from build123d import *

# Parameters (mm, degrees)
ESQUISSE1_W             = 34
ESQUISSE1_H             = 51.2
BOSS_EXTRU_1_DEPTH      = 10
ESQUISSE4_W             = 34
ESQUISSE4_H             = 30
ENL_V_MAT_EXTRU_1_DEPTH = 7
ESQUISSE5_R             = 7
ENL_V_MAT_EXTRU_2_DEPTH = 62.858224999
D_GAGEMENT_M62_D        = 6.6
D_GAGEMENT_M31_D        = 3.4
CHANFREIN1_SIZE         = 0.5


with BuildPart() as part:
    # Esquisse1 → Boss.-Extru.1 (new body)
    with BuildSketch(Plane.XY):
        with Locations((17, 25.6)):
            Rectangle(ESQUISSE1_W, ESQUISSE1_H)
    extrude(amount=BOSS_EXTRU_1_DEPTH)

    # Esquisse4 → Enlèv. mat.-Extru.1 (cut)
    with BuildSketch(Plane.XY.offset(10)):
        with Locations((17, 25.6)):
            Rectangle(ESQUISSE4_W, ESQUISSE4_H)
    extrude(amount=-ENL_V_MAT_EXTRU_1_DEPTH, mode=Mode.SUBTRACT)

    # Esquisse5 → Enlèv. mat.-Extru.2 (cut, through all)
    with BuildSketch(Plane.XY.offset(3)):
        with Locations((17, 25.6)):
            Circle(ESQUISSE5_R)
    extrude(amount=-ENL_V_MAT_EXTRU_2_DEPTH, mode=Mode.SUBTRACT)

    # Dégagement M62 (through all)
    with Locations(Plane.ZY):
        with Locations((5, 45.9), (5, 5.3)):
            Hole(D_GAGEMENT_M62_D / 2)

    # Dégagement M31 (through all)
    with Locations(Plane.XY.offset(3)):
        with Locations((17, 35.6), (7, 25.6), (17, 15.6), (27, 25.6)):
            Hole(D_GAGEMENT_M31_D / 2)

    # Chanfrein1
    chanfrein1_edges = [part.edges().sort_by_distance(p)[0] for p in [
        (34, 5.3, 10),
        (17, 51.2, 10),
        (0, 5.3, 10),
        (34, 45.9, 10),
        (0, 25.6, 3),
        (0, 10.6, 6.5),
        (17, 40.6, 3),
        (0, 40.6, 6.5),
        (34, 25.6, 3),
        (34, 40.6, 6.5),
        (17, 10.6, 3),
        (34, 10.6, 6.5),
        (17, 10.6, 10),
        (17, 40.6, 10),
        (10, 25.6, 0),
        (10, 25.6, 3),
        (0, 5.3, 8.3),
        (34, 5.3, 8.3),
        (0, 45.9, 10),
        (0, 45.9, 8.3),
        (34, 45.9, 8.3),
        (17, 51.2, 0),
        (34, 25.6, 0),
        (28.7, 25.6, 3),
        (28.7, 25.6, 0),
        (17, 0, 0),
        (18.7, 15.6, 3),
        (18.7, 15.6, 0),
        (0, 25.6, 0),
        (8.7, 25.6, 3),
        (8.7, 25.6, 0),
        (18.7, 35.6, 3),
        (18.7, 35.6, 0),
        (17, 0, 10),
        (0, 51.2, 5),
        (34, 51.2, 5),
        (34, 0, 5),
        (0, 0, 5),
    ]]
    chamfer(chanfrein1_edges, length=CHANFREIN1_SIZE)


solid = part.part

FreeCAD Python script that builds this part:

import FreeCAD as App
import Part
import Sketcher
Q = App.Units.Quantity


def add_polygon(sketch, points):
    """Adds a closed chain of lines whose ends are joined by coincident constraints."""
    first, n = sketch.GeometryCount, len(points)
    for a, b in zip(points, points[1:] + points[:1]):
        sketch.addGeometry(Part.LineSegment(App.Vector(*a, 0), App.Vector(*b, 0)), False)
    for i in range(n):
        sketch.addConstraint(Sketcher.Constraint("Coincident", first + i, 2, first + (i + 1) % n, 1))

doc = App.newDocument("Part")
body = doc.addObject("PartDesign::Body", "Body")

# Sketch on XY plane
sketch1 = doc.addObject("Sketcher::SketchObject", "Sketch")
body.addObject(sketch1)
sketch1.AttachmentSupport = (doc.XY_Plane, [""])
sketch1.MapMode = "FlatFace"
add_polygon(sketch1, [(0, 51), (0, 0), (34, 0), (34, 51)])  # lines 0-3
sketch1.addConstraint([
    Sketcher.Constraint("Vertical", 0),
    Sketcher.Constraint("Horizontal", 1),
    Sketcher.Constraint("Vertical", 2),
    Sketcher.Constraint("Horizontal", 3),
    Sketcher.Constraint("Coincident", 0, 2, -1, 1),
    Sketcher.Constraint("DistanceX", 1, 1, 1, 2, Q("34 mm")),
    Sketcher.Constraint("DistanceY", 0, 2, 0, 1, Q("51.2 mm")),
])
pad1 = doc.addObject("PartDesign::Pad", "Pad")
body.addObject(pad1)
pad1.Profile = sketch1
pad1.Length = 10

# Sketch on XY plane
sketch2 = doc.addObject("Sketcher::SketchObject", "Sketch001")
body.addObject(sketch2)
sketch2.AttachmentSupport = (doc.XY_Plane, [""])
sketch2.MapMode = "FlatFace"
sketch2.AttachmentOffset = App.Placement(App.Vector(0, 0, 10), App.Rotation())
add_polygon(sketch2, [(0, 41), (0, 11), (34, 11), (34, 41)])  # lines 0-3
sketch2.addConstraint([
    Sketcher.Constraint("Vertical", 0),
    Sketcher.Constraint("Horizontal", 1),
    Sketcher.Constraint("Vertical", 2),
    Sketcher.Constraint("Horizontal", 3),
    Sketcher.Constraint("PointOnObject", 0, 2, -2),
    Sketcher.Constraint("DistanceX", 1, 1, 1, 2, Q("34 mm")),
    Sketcher.Constraint("DistanceY", 0, 2, 0, 1, Q("30 mm")),
    Sketcher.Constraint("DistanceY", -1, 1, 0, 2, Q("10.6 mm")),
])
pocket1 = doc.addObject("PartDesign::Pocket", "Pocket")
body.addObject(pocket1)
pocket1.Profile = sketch2
pocket1.Length = 7

# Sketch on XY plane
sketch3 = doc.addObject("Sketcher::SketchObject", "Sketch002")
body.addObject(sketch3)
sketch3.AttachmentSupport = (doc.XY_Plane, [""])
sketch3.MapMode = "FlatFace"
sketch3.AttachmentOffset = App.Placement(App.Vector(0, 0, 3), App.Rotation())
sketch3.addGeometry(Part.Circle(App.Vector(17, 26, 0), App.Vector(0, 0, 1), 7), False)
sketch3.addConstraint([
    Sketcher.Constraint("Diameter", 0, Q("14 mm")),
    Sketcher.Constraint("DistanceX", -1, 1, 0, 3, Q("17 mm")),
    Sketcher.Constraint("DistanceY", -1, 1, 0, 3, Q("25.6 mm")),
])
pocket2 = doc.addObject("PartDesign::Pocket", "Pocket001")
body.addObject(pocket2)
pocket2.Profile = sketch3
pocket2.Type = "ThroughAll"

# Sketch on YZ plane
sketch4 = doc.addObject("Sketcher::SketchObject", "Sketch003")
body.addObject(sketch4)
sketch4.AttachmentSupport = (doc.YZ_Plane, [""])
sketch4.MapMode = "FlatFace"
sketch4.addGeometry([
    Part.Circle(App.Vector(45.9, 5, 0), App.Vector(0, 0, 1), 3.3),
    Part.Circle(App.Vector(5.3, 5, 0), App.Vector(0, 0, 1), 3.3),
], False)
sketch4.addConstraint([
    Sketcher.Constraint("Equal", 0, 1),
    Sketcher.Constraint("Horizontal", 0, 3, 1, 3),
    Sketcher.Constraint("Diameter", 0, Q("6.6 mm")),
    Sketcher.Constraint("DistanceY", -1, 1, 0, 3, Q("5 mm")),
    Sketcher.Constraint("DistanceX", -1, 1, 0, 3, Q("45.9 mm")),
    Sketcher.Constraint("DistanceX", -1, 1, 1, 3, Q("5.3 mm")),
])
doc.recompute()
hole = doc.addObject("PartDesign::Hole", "Hole")
body.addObject(hole)
hole.Profile = sketch4
hole.ThreadType = "None"
hole.Diameter = 6.6
hole.DepthType = "ThroughAll"
hole.Reversed = True

# Sketch on XY plane
sketch5 = doc.addObject("Sketcher::SketchObject", "Sketch004")
body.addObject(sketch5)
sketch5.AttachmentSupport = (doc.XY_Plane, [""])
sketch5.MapMode = "FlatFace"
sketch5.AttachmentOffset = App.Placement(App.Vector(0, 0, 3), App.Rotation())
sketch5.addGeometry([
    Part.Circle(App.Vector(17, 35.6, 0), App.Vector(0, 0, 1), 1.7),
    Part.Circle(App.Vector(7, 25.6, 0), App.Vector(0, 0, 1), 1.7),
    Part.Circle(App.Vector(17, 15.6, 0), App.Vector(0, 0, 1), 1.7),
    Part.Circle(App.Vector(27, 25.6, 0), App.Vector(0, 0, 1), 1.7),
], False)
sketch5.addConstraint([
    Sketcher.Constraint("Equal", 0, 1),
    Sketcher.Constraint("Equal", 1, 2),
    Sketcher.Constraint("Equal", 2, 3),
    Sketcher.Constraint("Horizontal", 1, 3, 3, 3),
    Sketcher.Constraint("Vertical", 0, 3, 2, 3),
    Sketcher.Constraint("Diameter", 0, Q("3.4 mm")),
    Sketcher.Constraint("DistanceX", -1, 1, 0, 3, Q("17 mm")),
    Sketcher.Constraint("DistanceX", -1, 1, 1, 3, Q("7 mm")),
    Sketcher.Constraint("DistanceX", -1, 1, 3, 3, Q("27 mm")),
    Sketcher.Constraint("DistanceY", 1, 3, 0, 3, Q("10 mm")),
    Sketcher.Constraint("DistanceY", 2, 3, 1, 3, Q("10 mm")),
    Sketcher.Constraint("DistanceY", -1, 1, 0, 3, Q("35.6 mm")),
])
doc.recompute()
hole2 = doc.addObject("PartDesign::Hole", "Hole001")
body.addObject(hole2)
hole2.Profile = sketch5
hole2.ThreadType = "None"
hole2.Diameter = 3.4
hole2.DepthType = "ThroughAll"
doc.recompute()

chamfer = doc.addObject("PartDesign::Chamfer", "Chamfer")
body.addObject(chamfer)
chamfer.Base = (hole2, ["Edge1"])
chamfer.UseAllEdges = True
chamfer.Size = 0.5

doc.recompute()
